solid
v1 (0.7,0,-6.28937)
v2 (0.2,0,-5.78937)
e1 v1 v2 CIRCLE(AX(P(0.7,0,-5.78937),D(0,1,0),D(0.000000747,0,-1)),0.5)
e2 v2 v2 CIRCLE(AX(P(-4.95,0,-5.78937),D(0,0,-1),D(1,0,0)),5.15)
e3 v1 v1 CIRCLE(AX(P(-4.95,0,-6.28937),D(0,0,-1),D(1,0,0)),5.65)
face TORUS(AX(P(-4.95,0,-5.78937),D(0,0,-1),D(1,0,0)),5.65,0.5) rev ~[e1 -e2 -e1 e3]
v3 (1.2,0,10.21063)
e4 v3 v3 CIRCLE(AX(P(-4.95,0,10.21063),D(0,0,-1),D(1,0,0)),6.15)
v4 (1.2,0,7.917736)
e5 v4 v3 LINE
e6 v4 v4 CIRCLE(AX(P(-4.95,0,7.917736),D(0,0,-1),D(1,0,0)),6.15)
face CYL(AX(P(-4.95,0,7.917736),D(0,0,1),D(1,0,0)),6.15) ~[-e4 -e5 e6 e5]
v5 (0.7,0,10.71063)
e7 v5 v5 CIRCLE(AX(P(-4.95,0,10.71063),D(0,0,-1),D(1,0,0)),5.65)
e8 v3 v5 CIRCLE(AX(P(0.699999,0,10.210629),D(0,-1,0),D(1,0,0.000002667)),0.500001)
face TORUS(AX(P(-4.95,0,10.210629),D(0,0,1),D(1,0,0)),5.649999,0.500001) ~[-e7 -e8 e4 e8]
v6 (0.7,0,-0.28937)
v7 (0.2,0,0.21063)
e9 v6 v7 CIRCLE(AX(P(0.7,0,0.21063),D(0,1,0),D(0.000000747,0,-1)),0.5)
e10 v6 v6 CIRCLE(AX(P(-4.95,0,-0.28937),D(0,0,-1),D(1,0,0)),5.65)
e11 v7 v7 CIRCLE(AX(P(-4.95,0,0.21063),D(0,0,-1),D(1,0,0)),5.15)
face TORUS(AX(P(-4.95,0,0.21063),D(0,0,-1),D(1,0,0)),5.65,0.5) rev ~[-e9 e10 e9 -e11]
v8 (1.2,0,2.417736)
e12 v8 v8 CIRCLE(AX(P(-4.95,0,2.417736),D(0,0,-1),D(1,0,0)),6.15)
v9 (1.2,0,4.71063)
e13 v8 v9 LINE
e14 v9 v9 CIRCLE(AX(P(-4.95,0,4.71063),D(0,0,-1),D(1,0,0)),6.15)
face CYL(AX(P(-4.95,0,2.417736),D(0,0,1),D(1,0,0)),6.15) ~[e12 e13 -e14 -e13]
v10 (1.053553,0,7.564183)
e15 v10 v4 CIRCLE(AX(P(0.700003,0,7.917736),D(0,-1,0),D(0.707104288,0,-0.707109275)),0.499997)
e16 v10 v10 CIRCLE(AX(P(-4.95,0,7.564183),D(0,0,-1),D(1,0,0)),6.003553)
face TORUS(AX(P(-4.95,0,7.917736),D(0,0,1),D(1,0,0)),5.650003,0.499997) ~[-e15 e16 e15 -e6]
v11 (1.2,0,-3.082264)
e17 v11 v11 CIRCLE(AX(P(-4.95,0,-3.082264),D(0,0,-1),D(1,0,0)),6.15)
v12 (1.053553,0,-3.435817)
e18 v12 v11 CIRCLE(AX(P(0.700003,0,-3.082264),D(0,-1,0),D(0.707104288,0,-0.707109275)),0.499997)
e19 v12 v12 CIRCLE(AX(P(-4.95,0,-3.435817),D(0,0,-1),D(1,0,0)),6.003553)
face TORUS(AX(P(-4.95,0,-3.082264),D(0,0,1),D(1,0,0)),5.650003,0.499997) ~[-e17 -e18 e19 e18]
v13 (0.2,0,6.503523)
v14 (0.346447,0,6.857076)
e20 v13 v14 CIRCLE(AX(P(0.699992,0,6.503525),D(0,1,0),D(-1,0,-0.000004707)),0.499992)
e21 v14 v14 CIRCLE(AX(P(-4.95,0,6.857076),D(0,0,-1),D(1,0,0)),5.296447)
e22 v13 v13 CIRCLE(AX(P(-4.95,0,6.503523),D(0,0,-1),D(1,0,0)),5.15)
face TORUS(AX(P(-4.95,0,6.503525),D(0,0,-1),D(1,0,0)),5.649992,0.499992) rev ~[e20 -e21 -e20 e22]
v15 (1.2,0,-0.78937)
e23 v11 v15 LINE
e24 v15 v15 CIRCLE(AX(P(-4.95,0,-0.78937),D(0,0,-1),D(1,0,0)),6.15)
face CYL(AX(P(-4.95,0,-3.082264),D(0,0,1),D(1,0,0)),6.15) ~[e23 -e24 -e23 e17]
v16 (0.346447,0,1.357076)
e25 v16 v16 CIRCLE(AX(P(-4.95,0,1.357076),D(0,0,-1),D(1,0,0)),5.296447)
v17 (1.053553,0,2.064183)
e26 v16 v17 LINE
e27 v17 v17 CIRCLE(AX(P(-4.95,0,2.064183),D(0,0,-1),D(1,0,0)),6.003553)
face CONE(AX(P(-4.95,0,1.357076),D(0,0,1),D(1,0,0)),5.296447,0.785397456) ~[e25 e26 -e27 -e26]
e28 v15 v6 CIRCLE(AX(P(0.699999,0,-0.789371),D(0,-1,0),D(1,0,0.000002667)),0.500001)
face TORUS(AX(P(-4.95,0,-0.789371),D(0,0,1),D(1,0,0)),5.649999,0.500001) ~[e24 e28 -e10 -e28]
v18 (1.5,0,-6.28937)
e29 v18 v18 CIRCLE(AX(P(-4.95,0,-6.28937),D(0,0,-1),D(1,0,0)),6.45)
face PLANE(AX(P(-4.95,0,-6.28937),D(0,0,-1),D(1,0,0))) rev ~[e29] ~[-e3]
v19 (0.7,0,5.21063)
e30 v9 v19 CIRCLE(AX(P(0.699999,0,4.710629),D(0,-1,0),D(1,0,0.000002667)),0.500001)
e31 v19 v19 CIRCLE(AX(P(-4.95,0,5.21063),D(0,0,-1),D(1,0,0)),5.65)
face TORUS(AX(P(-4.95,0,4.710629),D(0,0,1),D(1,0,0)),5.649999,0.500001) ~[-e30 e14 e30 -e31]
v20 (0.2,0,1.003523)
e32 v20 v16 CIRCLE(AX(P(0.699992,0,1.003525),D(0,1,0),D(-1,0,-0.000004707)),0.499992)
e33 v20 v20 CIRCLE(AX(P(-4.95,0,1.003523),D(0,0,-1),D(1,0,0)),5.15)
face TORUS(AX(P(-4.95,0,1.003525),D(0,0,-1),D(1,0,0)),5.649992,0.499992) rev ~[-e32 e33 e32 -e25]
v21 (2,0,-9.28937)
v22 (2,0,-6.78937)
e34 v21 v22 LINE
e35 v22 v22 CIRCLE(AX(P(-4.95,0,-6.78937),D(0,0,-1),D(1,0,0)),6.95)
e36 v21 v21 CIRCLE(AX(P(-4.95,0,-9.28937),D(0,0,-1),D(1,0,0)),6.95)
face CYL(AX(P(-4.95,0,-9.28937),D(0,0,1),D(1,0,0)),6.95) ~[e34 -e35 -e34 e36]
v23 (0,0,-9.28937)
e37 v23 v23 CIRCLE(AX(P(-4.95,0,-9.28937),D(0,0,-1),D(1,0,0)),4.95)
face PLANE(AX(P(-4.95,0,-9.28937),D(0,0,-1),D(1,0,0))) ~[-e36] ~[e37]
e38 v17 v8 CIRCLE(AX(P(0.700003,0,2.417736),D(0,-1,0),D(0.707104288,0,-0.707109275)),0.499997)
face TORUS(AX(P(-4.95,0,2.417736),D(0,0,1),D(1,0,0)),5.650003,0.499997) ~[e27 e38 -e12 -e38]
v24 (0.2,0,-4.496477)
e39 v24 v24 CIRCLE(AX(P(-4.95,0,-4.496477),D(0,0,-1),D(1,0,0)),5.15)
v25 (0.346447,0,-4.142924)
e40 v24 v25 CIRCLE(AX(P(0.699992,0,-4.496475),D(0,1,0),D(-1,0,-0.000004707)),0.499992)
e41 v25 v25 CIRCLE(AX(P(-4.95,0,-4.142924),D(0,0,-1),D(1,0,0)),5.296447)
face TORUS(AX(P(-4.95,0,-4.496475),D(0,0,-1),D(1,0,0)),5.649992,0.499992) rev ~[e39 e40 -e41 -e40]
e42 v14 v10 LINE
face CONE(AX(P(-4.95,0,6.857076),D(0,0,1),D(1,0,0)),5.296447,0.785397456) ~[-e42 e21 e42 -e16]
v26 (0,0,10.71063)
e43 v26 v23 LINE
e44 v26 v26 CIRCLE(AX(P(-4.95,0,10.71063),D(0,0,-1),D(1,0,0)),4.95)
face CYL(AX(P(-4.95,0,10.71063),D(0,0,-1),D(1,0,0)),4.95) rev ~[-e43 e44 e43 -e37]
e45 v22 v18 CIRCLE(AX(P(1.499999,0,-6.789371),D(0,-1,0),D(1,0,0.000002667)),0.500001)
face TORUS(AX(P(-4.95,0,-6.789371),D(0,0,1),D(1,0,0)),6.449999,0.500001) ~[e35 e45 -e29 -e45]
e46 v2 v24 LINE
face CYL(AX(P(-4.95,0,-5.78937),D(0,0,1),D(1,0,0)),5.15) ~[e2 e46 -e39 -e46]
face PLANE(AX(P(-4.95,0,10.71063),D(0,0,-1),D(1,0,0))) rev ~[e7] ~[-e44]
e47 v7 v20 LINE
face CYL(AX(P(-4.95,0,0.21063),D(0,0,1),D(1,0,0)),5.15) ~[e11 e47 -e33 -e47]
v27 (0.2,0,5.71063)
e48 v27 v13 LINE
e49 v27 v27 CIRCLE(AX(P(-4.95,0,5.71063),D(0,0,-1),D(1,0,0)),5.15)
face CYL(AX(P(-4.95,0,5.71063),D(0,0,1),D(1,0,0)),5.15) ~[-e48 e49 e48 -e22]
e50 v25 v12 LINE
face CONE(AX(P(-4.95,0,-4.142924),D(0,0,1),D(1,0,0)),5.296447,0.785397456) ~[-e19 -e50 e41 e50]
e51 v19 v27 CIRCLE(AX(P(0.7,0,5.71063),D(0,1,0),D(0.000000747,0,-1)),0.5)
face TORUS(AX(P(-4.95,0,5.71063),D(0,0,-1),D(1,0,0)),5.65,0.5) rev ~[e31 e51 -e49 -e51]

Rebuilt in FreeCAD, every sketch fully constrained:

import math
import FreeCAD as App
import Part
import Sketcher
from FreeCAD import Vector

doc = App.newDocument("Part")
body = doc.addObject("PartDesign::Body", "Body")

# Sketch on XZ plane
sketch1 = body.newObject("Sketcher::SketchObject", "Sketch")
sketch1.AttachmentSupport = (doc.getObject("XZ_Plane"), [""])
sketch1.MapMode = "FlatFace"
sketch1.addGeometry([
    Part.LineSegment(Vector(0, 10.71, 0), Vector(0, -9.29, 0)),  # 0
    Part.LineSegment(Vector(0, -9.29, 0), Vector(2, -9.29, 0)),  # 1
    Part.LineSegment(Vector(2, -9.29, 0), Vector(2, -6.79, 0)),  # 2
    Part.ArcOfCircle(Part.Circle(Vector(1.5, -6.79, 0), Vector(0, 0, 1), 0.5), math.radians(0), math.radians(90)),  # 3
    Part.LineSegment(Vector(1.5, -6.29, 0), Vector(0.7, -6.29, 0)),  # 4
    Part.ArcOfCircle(Part.Circle(Vector(0.7, -5.79, 0), Vector(0, 0, 1), 0.5), math.radians(180), math.radians(270)),  # 5
    Part.LineSegment(Vector(0.2, -5.79, 0), Vector(0.2, -4.5, 0)),  # 6
    Part.ArcOfCircle(Part.Circle(Vector(0.7, -4.5, 0), Vector(0, 0, 1), 0.5), math.radians(135), math.radians(180)),  # 7
    Part.LineSegment(Vector(0.35, -4.14, 0), Vector(1.05, -3.44, 0)),  # 8
    Part.ArcOfCircle(Part.Circle(Vector(0.7, -3.08, 0), Vector(0, 0, 1), 0.5), math.radians(-45), math.radians(0)),  # 9
    Part.LineSegment(Vector(1.2, -3.08, 0), Vector(1.2, -0.79, 0)),  # 10
    Part.ArcOfCircle(Part.Circle(Vector(0.7, -0.79, 0), Vector(0, 0, 1), 0.5), math.radians(0), math.radians(90)),  # 11
    Part.ArcOfCircle(Part.Circle(Vector(0.7, 0.21, 0), Vector(0, 0, 1), 0.5), math.radians(180), math.radians(270)),  # 12
    Part.LineSegment(Vector(0.2, 0.21, 0), Vector(0.2, 1, 0)),  # 13
    Part.ArcOfCircle(Part.Circle(Vector(0.7, 1, 0), Vector(0, 0, 1), 0.5), math.radians(135), math.radians(180)),  # 14
    Part.LineSegment(Vector(0.35, 1.36, 0), Vector(1.05, 2.06, 0)),  # 15
    Part.ArcOfCircle(Part.Circle(Vector(0.7, 2.42, 0), Vector(0, 0, 1), 0.5), math.radians(-45), math.radians(0)),  # 16
    Part.LineSegment(Vector(1.2, 2.42, 0), Vector(1.2, 4.71, 0)),  # 17
    Part.ArcOfCircle(Part.Circle(Vector(0.7, 4.71, 0), Vector(0, 0, 1), 0.5), math.radians(0), math.radians(90)),  # 18
    Part.ArcOfCircle(Part.Circle(Vector(0.7, 5.71, 0), Vector(0, 0, 1), 0.5), math.radians(180), math.radians(270)),  # 19
    Part.LineSegment(Vector(0.2, 5.71, 0), Vector(0.2, 6.5, 0)),  # 20
    Part.ArcOfCircle(Part.Circle(Vector(0.7, 6.5, 0), Vector(0, 0, 1), 0.5), math.radians(135), math.radians(180)),  # 21
    Part.LineSegment(Vector(0.35, 6.86, 0), Vector(1.05, 7.56, 0)),  # 22
    Part.ArcOfCircle(Part.Circle(Vector(0.7, 7.92, 0), Vector(0, 0, 1), 0.5), math.radians(-45), math.radians(0)),  # 23
    Part.LineSegment(Vector(1.2, 7.92, 0), Vector(1.2, 10.21, 0)),  # 24
    Part.ArcOfCircle(Part.Circle(Vector(0.7, 10.21, 0), Vector(0, 0, 1), 0.5), math.radians(0), math.radians(90)),  # 25
    Part.LineSegment(Vector(0.7, 10.71, 0), Vector(0, 10.71, 0)),  # 26
], False)
sketch1.addGeometry(Part.LineSegment(Vector(-4.95, 10.71, 0), Vector(-4.95, -9.29, 0)), True)  # axis
sketch1.addConstraint([
    Sketcher.Constraint("Coincident", 0, 2, 1, 1),
    Sketcher.Constraint("Coincident", 1, 2, 2, 1),
    Sketcher.Constraint("Coincident", 2, 2, 3, 1),
    Sketcher.Constraint("Coincident", 3, 2, 4, 1),
    Sketcher.Constraint("Tangent", 4, 2, 5, 2),
    Sketcher.Constraint("Tangent", 5, 1, 6, 1),
    Sketcher.Constraint("Coincident", 6, 2, 7, 2),
    Sketcher.Constraint("Coincident", 7, 1, 8, 1),
    Sketcher.Constraint("Coincident", 8, 2, 9, 1),
    Sketcher.Constraint("Tangent", 9, 2, 10, 1),
    Sketcher.Constraint("Coincident", 10, 2, 11, 1),
    Sketcher.Constraint("Coincident", 11, 2, 12, 2),
    Sketcher.Constraint("Tangent", 12, 1, 13, 1),
    Sketcher.Constraint("Coincident", 13, 2, 14, 2),
    Sketcher.Constraint("Coincident", 14, 1, 15, 1),
    Sketcher.Constraint("Coincident", 15, 2, 16, 1),
    Sketcher.Constraint("Tangent", 16, 2, 17, 1),
    Sketcher.Constraint("Coincident", 17, 2, 18, 1),
    Sketcher.Constraint("Coincident", 18, 2, 19, 2),
    Sketcher.Constraint("Tangent", 19, 1, 20, 1),
    Sketcher.Constraint("Coincident", 20, 2, 21, 2),
    Sketcher.Constraint("Coincident", 21, 1, 22, 1),
    Sketcher.Constraint("Coincident", 22, 2, 23, 1),
    Sketcher.Constraint("Tangent", 23, 2, 24, 1),
    Sketcher.Constraint("Coincident", 24, 2, 25, 1),
    Sketcher.Constraint("Coincident", 25, 2, 26, 1),
    Sketcher.Constraint("Coincident", 26, 2, 0, 1),
    Sketcher.Constraint("Vertical", 0),
    Sketcher.Constraint("Horizontal", 1),
    Sketcher.Constraint("Vertical", 2),
    Sketcher.Constraint("Horizontal", 4),
    Sketcher.Constraint("Vertical", 6),
    Sketcher.Constraint("Vertical", 10),
    Sketcher.Constraint("Vertical", 13),
    Sketcher.Constraint("Vertical", 17),
    Sketcher.Constraint("Vertical", 20),
    Sketcher.Constraint("Vertical", 24),
    Sketcher.Constraint("Horizontal", 26),
    Sketcher.Constraint("Vertical", 27),
    Sketcher.Constraint("Equal", 3, 5),
    Sketcher.Constraint("Equal", 5, 11),
    Sketcher.Constraint("Equal", 11, 12),
    Sketcher.Constraint("Equal", 7, 14),
    Sketcher.Constraint("Equal", 9, 16),
    Sketcher.Constraint("Equal", 12, 18),
    Sketcher.Constraint("Equal", 18, 19),
    Sketcher.Constraint("Equal", 14, 21),
    Sketcher.Constraint("Equal", 16, 23),
    Sketcher.Constraint("Equal", 19, 25),
    Sketcher.Constraint("PointOnObject", 0, 2, -2),
    Sketcher.Constraint("Parallel", 8, 15),
    Sketcher.Constraint("Parallel", 15, 22),
    Sketcher.Constraint("Horizontal", 3, 3, 2, 2),
    Sketcher.Constraint("Horizontal", 11, 3, 10, 2),
    Sketcher.Constraint("Horizontal", 18, 3, 17, 2),
    Sketcher.Constraint("Horizontal", 25, 3, 24, 2),
    Sketcher.Constraint("Horizontal", 26, 2, 27, 1),
    Sketcher.Constraint("Horizontal", 1, 2, 27, 2),
    Sketcher.Constraint("Vertical", 5, 3, 11, 3),
    Sketcher.Constraint("Vertical", 11, 3, 12, 3),
    Sketcher.Constraint("Vertical", 9, 3, 16, 3),
    Sketcher.Constraint("Vertical", 18, 3, 19, 3),
    Sketcher.Constraint("Vertical", 16, 3, 23, 3),
    Sketcher.Constraint("Vertical", 4, 2, 11, 2),
    Sketcher.Constraint("Vertical", 7, 1, 14, 1),
    Sketcher.Constraint("Vertical", 8, 2, 15, 2),
    Sketcher.Constraint("Vertical", 11, 2, 18, 2),
    Sketcher.Constraint("Vertical", 14, 1, 21, 1),
    Sketcher.Constraint("Vertical", 15, 2, 22, 2),
    Sketcher.Constraint("Vertical", 18, 2, 25, 2),
    Sketcher.Constraint("Equal", 10, 17),
    Sketcher.Constraint("Equal", 13, 20),
    Sketcher.Constraint("Equal", 17, 24),
    Sketcher.Constraint("Radius", 3, 0.500001),
    Sketcher.Constraint("DistanceX", 1, 1, 1, 2, 2.0),
    Sketcher.Constraint("DistanceY", 0, 2, 0, 1, 20.0),
    Sketcher.Constraint("Distance", 8, 1.0),
    Sketcher.Constraint("DistanceX", 4, 2, 4, 1, 0.8),
    Sketcher.Constraint("DistanceX", 26, 2, 26, 1, 0.7),
    Sketcher.Constraint("DistanceY", 2, 1, 2, 2, 2.5),
    Sketcher.Constraint("DistanceY", 5, 3, 11, 3, 4.999999),
    Sketcher.Constraint("DistanceY", 7, 3, 14, 3, 5.5),
    Sketcher.Constraint("DistanceX", 27, 1, -1, 1, 4.95),
    Sketcher.Constraint("Radius", 7, 0.499992),
    Sketcher.Constraint("Radius", 9, 0.499997),
    Sketcher.Constraint("DistanceY", 6, 1, 6, 2, 1.292893),
    Sketcher.Constraint("DistanceY", 10, 1, 10, 2, 2.292894),
    Sketcher.Constraint("DistanceY", 13, 1, 13, 2, 0.792893),
    Sketcher.Constraint("DistanceY", 3, 3, -1, 1, 6.789371),
    Sketcher.Constraint("DistanceY", 7, 3, 9, 3, 1.41421),
    Sketcher.Constraint("DistanceY", 7, 3, 7, 1, 0.353551),
])
revolution = body.newObject("PartDesign::Revolution", "Revolution")
revolution.Profile = sketch1
revolution.ReferenceAxis = (sketch1, ["Axis0"])
revolution.Angle = 360

doc.recompute()
